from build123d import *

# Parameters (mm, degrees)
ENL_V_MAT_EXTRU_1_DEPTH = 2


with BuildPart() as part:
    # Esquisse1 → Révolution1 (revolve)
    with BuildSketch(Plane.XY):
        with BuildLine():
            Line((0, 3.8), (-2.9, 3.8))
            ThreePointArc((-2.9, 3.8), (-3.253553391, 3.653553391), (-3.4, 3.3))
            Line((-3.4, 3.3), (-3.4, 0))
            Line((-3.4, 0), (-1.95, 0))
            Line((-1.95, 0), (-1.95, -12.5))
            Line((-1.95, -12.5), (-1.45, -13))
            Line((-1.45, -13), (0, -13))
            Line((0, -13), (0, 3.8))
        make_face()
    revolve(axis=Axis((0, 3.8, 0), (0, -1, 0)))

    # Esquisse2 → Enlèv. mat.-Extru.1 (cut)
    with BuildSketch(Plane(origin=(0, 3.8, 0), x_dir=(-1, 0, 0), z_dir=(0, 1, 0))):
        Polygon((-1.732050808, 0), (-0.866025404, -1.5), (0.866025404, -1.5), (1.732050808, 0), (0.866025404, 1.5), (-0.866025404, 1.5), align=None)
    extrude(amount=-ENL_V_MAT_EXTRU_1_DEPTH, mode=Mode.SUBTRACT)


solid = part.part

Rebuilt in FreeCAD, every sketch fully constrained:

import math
import FreeCAD as App
import Part
import Sketcher
Q = App.Units.Quantity


def add_polygon(sketch, points):
    """Adds a closed chain of lines whose ends are joined by coincident constraints."""
    first, n = sketch.GeometryCount, len(points)
    for a, b in zip(points, points[1:] + points[:1]):
        sketch.addGeometry(Part.LineSegment(App.Vector(*a, 0), App.Vector(*b, 0)), False)
    for i in range(n):
        sketch.addConstraint(Sketcher.Constraint("Coincident", first + i, 2, first + (i + 1) % n, 1))

doc = App.newDocument("Part")
body = doc.addObject("PartDesign::Body", "Body")

# Sketch on XY plane
sketch1 = body.newObject("Sketcher::SketchObject", "Sketch")
sketch1.AttachmentSupport = (doc.getObject("XY_Plane"), [""])
sketch1.MapMode = "FlatFace"
sketch1.addGeometry([
    Part.LineSegment(App.Vector(0, 3.8, 0), App.Vector(-2.9, 3.8, 0)),  # 0
    Part.ArcOfCircle(Part.Circle(App.Vector(-2.9, 3.3, 0), App.Vector(0, 0, 1), 0.5), math.radians(90), math.radians(180)),  # 1
    Part.LineSegment(App.Vector(-3.4, 3.3, 0), App.Vector(-3.4, 0, 0)),  # 2
    Part.LineSegment(App.Vector(-3.4, 0, 0), App.Vector(-1.95, 0, 0)),  # 3
    Part.LineSegment(App.Vector(-1.95, 0, 0), App.Vector(-1.95, -12.5, 0)),  # 4
    Part.LineSegment(App.Vector(-1.95, -12.5, 0), App.Vector(-1.45, -13, 0)),  # 5
    Part.LineSegment(App.Vector(-1.45, -13, 0), App.Vector(0, -13, 0)),  # 6
    Part.LineSegment(App.Vector(0, -13, 0), App.Vector(0, 3.8, 0)),  # 7
], False)
sketch1.addConstraint([
    Sketcher.Constraint("Tangent", 0, 2, 1, 1),
    Sketcher.Constraint("Tangent", 1, 2, 2, 1),
    Sketcher.Constraint("Coincident", 2, 2, 3, 1),
    Sketcher.Constraint("Coincident", 3, 2, 4, 1),
    Sketcher.Constraint("Coincident", 4, 2, 5, 1),
    Sketcher.Constraint("Coincident", 5, 2, 6, 1),
    Sketcher.Constraint("Coincident", 6, 2, 7, 1),
    Sketcher.Constraint("Coincident", 7, 2, 0, 1),
    Sketcher.Constraint("Horizontal", 0),
    Sketcher.Constraint("Vertical", 2),
    Sketcher.Constraint("Horizontal", 3),
    Sketcher.Constraint("Vertical", 4),
    Sketcher.Constraint("Horizontal", 6),
    Sketcher.Constraint("Vertical", 7),
    Sketcher.Constraint("PointOnObject", 2, 2, -1),
    Sketcher.Constraint("PointOnObject", 6, 2, -2),
    Sketcher.Constraint("Equal", 3, 6),
    Sketcher.Constraint("Radius", 1, 0.5),
    Sketcher.Constraint("Angle", 5, Q("-45 deg")),
    Sketcher.Constraint("DistanceX", 0, 2, 0, 1, 2.9),
    Sketcher.Constraint("DistanceY", 2, 2, 2, 1, 3.3),
    Sketcher.Constraint("DistanceY", 4, 2, 4, 1, 12.5),
    Sketcher.Constraint("DistanceY", 7, 1, 7, 2, 16.8),
])
revolution = body.newObject("PartDesign::Revolution", "Revolution")
revolution.Profile = sketch1
revolution.ReferenceAxis = (sketch1, ["V_Axis"])
revolution.Angle = 360

# Sketch on XZ plane
sketch2 = body.newObject("Sketcher::SketchObject", "Sketch001")
sketch2.AttachmentSupport = (doc.getObject("XZ_Plane"), [""])
sketch2.MapMode = "FlatFace"
sketch2.AttachmentOffset = App.Placement(App.Vector(0, 0, -3.8), App.Rotation())
add_polygon(sketch2, [(1.7, 0), (0.9, -1.5), (-0.9, -1.5), (-1.7, 0), (-0.9, 1.5), (0.9, 1.5)])  # lines 0-5
sketch2.addConstraint([
    Sketcher.Constraint("Horizontal", 1),
    Sketcher.Constraint("Horizontal", 4),
    Sketcher.Constraint("Symmetric", 0, 2, 3, 2, -1, 1),
    Sketcher.Constraint("Symmetric", 2, 2, 5, 2, -1, 1),
    Sketcher.Constraint("PointOnObject", 2, 2, -1),
    Sketcher.Constraint("Parallel", 2, 5),
    Sketcher.Constraint("Vertical", 1, 2, 3, 2),
    Sketcher.Constraint("Angle", 0, Q("-120 deg")),
    Sketcher.Constraint("DistanceY", 1, 2, 3, 2, 3.0),
    Sketcher.Constraint("DistanceX", 1, 2, 1, 1, 1.732051),
])
pocket1 = body.newObject("PartDesign::Pocket", "Pocket")
pocket1.Profile = sketch2
pocket1.Length = 2
pocket1.Reversed = True

doc.recompute()
